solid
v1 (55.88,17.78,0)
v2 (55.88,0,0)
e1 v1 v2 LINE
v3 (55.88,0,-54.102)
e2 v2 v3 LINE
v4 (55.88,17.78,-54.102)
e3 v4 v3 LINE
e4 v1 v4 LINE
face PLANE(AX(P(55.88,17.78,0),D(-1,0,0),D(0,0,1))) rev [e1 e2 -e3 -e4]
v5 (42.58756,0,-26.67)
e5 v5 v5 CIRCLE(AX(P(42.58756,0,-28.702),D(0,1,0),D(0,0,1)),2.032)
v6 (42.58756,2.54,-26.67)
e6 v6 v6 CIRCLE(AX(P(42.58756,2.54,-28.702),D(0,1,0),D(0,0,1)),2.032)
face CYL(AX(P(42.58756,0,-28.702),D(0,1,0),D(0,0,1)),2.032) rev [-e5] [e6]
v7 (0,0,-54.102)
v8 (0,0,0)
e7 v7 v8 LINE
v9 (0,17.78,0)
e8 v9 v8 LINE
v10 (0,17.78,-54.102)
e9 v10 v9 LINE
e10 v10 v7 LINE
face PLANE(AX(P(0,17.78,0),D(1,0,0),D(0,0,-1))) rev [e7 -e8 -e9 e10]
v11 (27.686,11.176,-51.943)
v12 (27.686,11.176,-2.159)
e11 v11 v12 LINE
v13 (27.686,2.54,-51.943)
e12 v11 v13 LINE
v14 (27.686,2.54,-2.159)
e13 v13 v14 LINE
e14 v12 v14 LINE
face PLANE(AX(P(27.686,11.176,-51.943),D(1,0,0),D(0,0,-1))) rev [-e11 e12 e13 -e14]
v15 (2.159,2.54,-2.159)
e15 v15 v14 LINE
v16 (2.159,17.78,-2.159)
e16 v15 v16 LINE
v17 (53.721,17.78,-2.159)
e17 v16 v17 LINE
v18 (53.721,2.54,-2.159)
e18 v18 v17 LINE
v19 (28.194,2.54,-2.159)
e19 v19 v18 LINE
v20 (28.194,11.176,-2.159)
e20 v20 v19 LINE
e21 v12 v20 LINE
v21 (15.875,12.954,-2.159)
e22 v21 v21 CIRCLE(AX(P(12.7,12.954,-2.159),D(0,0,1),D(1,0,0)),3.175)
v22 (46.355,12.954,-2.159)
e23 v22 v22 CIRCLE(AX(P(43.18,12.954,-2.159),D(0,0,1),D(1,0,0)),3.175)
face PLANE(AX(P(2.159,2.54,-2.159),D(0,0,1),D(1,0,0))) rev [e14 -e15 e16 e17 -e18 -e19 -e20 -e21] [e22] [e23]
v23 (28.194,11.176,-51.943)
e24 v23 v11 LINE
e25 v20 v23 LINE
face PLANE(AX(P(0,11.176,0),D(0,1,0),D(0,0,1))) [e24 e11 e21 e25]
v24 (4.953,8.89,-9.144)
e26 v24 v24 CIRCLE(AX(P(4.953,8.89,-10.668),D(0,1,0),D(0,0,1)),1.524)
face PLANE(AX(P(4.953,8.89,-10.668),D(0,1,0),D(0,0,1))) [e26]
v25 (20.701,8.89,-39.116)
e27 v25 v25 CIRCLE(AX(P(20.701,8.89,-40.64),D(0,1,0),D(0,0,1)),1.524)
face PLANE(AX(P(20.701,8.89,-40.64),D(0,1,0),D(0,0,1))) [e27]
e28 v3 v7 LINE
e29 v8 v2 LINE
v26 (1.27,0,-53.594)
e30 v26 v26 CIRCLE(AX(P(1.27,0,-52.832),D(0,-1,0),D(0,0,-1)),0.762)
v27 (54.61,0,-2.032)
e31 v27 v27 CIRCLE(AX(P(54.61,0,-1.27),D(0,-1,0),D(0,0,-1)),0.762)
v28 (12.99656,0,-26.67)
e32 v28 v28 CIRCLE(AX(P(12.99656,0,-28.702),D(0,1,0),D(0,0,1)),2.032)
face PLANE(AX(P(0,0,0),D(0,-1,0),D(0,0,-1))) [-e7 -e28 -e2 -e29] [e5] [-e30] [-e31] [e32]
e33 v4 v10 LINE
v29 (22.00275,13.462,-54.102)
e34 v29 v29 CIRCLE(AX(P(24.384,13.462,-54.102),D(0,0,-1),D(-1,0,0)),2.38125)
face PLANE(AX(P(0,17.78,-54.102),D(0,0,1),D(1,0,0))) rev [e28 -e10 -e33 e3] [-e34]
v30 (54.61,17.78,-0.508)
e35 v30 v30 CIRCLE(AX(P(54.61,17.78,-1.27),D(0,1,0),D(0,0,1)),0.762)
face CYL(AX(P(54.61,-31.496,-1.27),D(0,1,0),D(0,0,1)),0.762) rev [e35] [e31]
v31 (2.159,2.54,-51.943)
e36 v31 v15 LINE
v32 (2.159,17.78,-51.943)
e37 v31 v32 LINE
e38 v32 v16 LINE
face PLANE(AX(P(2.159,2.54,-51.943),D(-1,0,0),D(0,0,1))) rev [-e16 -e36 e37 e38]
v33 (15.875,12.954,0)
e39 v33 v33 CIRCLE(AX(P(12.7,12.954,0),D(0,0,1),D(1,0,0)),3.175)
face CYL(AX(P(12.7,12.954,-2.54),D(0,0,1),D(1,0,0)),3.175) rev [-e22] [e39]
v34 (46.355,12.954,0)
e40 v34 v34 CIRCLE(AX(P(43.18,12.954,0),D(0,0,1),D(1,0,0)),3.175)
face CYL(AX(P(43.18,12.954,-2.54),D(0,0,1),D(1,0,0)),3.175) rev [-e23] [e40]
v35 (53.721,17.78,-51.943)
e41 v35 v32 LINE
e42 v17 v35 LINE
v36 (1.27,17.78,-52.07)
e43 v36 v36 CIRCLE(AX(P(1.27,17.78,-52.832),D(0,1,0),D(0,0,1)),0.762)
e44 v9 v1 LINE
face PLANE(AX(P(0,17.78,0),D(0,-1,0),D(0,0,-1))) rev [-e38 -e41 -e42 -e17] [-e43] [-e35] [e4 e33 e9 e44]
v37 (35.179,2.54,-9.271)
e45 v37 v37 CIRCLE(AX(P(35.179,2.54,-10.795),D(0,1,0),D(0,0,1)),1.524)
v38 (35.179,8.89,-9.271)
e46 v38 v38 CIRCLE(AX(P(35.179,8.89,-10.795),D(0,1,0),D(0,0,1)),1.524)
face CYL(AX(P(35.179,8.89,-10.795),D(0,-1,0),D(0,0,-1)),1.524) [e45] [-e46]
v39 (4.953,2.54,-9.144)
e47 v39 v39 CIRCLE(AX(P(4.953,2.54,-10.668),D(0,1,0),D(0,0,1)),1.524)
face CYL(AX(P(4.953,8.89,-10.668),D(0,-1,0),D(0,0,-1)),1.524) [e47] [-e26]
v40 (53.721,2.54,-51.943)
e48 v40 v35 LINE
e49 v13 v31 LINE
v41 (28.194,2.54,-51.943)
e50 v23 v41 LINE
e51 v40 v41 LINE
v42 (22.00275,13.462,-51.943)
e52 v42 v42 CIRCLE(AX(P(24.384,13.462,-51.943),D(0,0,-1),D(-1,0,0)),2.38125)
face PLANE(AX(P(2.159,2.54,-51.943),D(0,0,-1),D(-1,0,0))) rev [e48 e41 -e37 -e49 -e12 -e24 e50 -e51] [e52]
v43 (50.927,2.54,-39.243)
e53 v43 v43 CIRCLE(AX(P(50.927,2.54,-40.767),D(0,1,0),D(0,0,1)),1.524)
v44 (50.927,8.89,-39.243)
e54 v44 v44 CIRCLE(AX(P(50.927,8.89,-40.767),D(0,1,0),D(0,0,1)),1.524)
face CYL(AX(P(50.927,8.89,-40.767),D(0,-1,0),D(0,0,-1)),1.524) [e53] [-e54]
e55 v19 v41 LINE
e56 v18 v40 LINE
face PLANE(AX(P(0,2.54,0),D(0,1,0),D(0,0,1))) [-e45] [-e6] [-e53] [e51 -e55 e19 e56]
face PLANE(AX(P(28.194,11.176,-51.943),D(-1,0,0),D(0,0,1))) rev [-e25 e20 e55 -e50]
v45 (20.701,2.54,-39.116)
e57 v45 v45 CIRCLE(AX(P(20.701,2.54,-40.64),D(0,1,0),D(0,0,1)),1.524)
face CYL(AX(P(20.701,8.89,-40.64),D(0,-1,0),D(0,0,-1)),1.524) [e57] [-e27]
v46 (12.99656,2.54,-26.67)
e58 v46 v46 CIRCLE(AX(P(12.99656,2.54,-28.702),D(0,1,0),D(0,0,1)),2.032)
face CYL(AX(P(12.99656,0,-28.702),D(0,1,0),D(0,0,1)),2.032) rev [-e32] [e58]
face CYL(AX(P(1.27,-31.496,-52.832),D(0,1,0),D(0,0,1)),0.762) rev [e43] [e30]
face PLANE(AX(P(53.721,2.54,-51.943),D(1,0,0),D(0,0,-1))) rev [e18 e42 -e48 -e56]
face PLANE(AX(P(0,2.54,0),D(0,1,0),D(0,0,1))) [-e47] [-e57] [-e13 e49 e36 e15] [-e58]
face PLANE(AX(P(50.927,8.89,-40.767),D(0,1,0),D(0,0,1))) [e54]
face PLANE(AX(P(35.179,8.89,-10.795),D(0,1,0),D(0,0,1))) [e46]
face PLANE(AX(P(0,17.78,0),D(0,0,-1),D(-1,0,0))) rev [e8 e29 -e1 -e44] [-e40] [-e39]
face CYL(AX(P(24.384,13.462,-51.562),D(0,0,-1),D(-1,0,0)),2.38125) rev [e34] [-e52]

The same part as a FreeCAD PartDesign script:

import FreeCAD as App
import Part
import Sketcher

V = App.Vector
Q = App.Units.Quantity

doc = App.newDocument("Part")
body = doc.addObject("PartDesign::Body", "Body")

sketch1 = body.newObject("Sketcher::SketchObject", "Sketch")
sketch1.AttachmentSupport = (doc.getObject("XZ_Plane"), [""])
sketch1.MapMode = "FlatFace"
sketch1.addGeometry(Part.LineSegment(V(0, -54.102, 0), V(0, 0, 0)), False)
sketch1.addGeometry(Part.LineSegment(V(0, 0, 0), V(55.88, 0, 0)), False)
sketch1.addGeometry(Part.LineSegment(V(55.88, 0, 0), V(55.88, -54.102, 0)), False)
sketch1.addGeometry(Part.LineSegment(V(55.88, -54.102, 0), V(0, -54.102, 0)), False)
sketch1.addConstraint(Sketcher.Constraint("Coincident", 0, 2, 1, 1))
sketch1.addConstraint(Sketcher.Constraint("Coincident", 1, 2, 2, 1))
sketch1.addConstraint(Sketcher.Constraint("Coincident", 2, 2, 3, 1))
sketch1.addConstraint(Sketcher.Constraint("Coincident", 3, 2, 0, 1))
sketch1.addConstraint(Sketcher.Constraint("Vertical", 0))
sketch1.addConstraint(Sketcher.Constraint("Horizontal", 1))
sketch1.addConstraint(Sketcher.Constraint("Vertical", 2))
sketch1.addConstraint(Sketcher.Constraint("Horizontal", 3))
sketch1.addConstraint(Sketcher.Constraint("Coincident", 0, 2, -1, 1))
sketch1.addConstraint(Sketcher.Constraint("DistanceX", 1, 1, 1, 2, Q("2.2 in")))
sketch1.addConstraint(Sketcher.Constraint("DistanceY", 0, 1, 0, 2, Q("2.13 in")))
pad1 = body.newObject("PartDesign::Pad", "Pad")
pad1.Profile = sketch1
pad1.Length = Q("0.7 in")
pad1.Reversed = True

sketch2 = body.newObject("Sketcher::SketchObject", "Sketch001")
sketch2.AttachmentSupport = (doc.getObject("XZ_Plane"), [""])
sketch2.MapMode = "FlatFace"
sketch2.AttachmentOffset = App.Placement(V(0, 0, -0.7 * 25.4), App.Rotation())
sketch2.addGeometry(Part.LineSegment(V(2.159, -51.943, 0), V(2.159, -2.159, 0)), False)
sketch2.addGeometry(Part.LineSegment(V(2.159, -2.159, 0), V(53.721, -2.159, 0)), False)
sketch2.addGeometry(Part.LineSegment(V(53.721, -2.159, 0), V(53.721, -51.943, 0)), False)
sketch2.addGeometry(Part.LineSegment(V(53.721, -51.943, 0), V(2.159, -51.943, 0)), False)
sketch2.addConstraint(Sketcher.Constraint("Coincident", 0, 2, 1, 1))
sketch2.addConstraint(Sketcher.Constraint("Coincident", 1, 2, 2, 1))
sketch2.addConstraint(Sketcher.Constraint("Coincident", 2, 2, 3, 1))
sketch2.addConstraint(Sketcher.Constraint("Coincident", 3, 2, 0, 1))
sketch2.addConstraint(Sketcher.Constraint("Vertical", 0))
sketch2.addConstraint(Sketcher.Constraint("Horizontal", 1))
sketch2.addConstraint(Sketcher.Constraint("Vertical", 2))
sketch2.addConstraint(Sketcher.Constraint("Horizontal", 3))
sketch2.addConstraint(Sketcher.Constraint("DistanceX", 1, 1, 1, 2, Q("2.03 in")))
sketch2.addConstraint(Sketcher.Constraint("DistanceY", 0, 1, 0, 2, Q("1.96 in")))
sketch2.addConstraint(Sketcher.Constraint("DistanceX", -1, 1, 0, 2, Q("0.085 in")))
sketch2.addConstraint(Sketcher.Constraint("DistanceY", 0, 2, -1, 1, Q("0.085 in")))
pocket1 = body.newObject("PartDesign::Pocket", "Pocket")
pocket1.Profile = sketch2
pocket1.Length = Q("0.6 in")
pocket1.Reversed = True

sketch3 = body.newObject("Sketcher::SketchObject", "Sketch002")
sketch3.AttachmentSupport = (doc.getObject("XZ_Plane"), [""])
sketch3.MapMode = "FlatFace"
sketch3.AttachmentOffset = App.Placement(V(0, 0, -0.1 * 25.4), App.Rotation())
sketch3.addGeometry(Part.Circle(V(20.701, -40.64, 0), V(0, 0, 1), 1.524), False)
sketch3.addGeometry(Part.Circle(V(4.953, -10.668, 0), V(0, 0, 1), 1.524), False)
sketch3.addGeometry(Part.Circle(V(50.927, -40.767, 0), V(0, 0, 1), 1.524), False)
sketch3.addGeometry(Part.Circle(V(35.179, -10.795, 0), V(0, 0, 1), 1.524), False)
sketch3.addConstraint(Sketcher.Constraint("Equal", 0, 1))
sketch3.addConstraint(Sketcher.Constraint("Equal", 1, 2))
sketch3.addConstraint(Sketcher.Constraint("Equal", 2, 3))
sketch3.addConstraint(Sketcher.Constraint("Diameter", 0, Q("0.12 in")))
sketch3.addConstraint(Sketcher.Constraint("DistanceY", 0, 3, -1, 1, Q("1.6 in")))
sketch3.addConstraint(Sketcher.Constraint("DistanceY", 1, 3, -1, 1, Q("0.42 in")))
sketch3.addConstraint(Sketcher.Constraint("DistanceX", 1, 3, 0, 3, Q("0.62 in")))
sketch3.addConstraint(Sketcher.Constraint("DistanceX", 0, 3, 2, 3, Q("1.19 in")))
sketch3.addConstraint(Sketcher.Constraint("DistanceX", 1, 3, 3, 3, Q("1.19 in")))
sketch3.addConstraint(Sketcher.Constraint("DistanceY", 2, 3, 3, 3, Q("1.18 in")))
sketch3.addConstraint(Sketcher.Constraint("DistanceX", -1, 1, 0, 3, Q("0.815 in")))
sketch3.addConstraint(Sketcher.Constraint("DistanceY", 2, 3, -1, 1, Q("1.605 in")))
pad2 = body.newObject("PartDesign::Pad", "Pad001")
pad2.Profile = sketch3
pad2.Length = Q("0.25 in")
pad2.Reversed = True

sketch4 = body.newObject("Sketcher::SketchObject", "Sketch003")
sketch4.AttachmentSupport = (doc.getObject("XZ_Plane"), [""])
sketch4.MapMode = "FlatFace"
sketch4.AttachmentOffset = App.Placement(V(0, 0, -0.1 * 25.4), App.Rotation())
sketch4.addGeometry(Part.LineSegment(V(27.686, -51.943, 0), V(27.686, -2.159, 0)), False)
sketch4.addGeometry(Part.LineSegment(V(27.686, -2.159, 0), V(28.194, -2.159, 0)), False)
sketch4.addGeometry(Part.LineSegment(V(28.194, -2.159, 0), V(28.194, -51.943, 0)), False)
sketch4.addGeometry(Part.LineSegment(V(28.194, -51.943, 0), V(27.686, -51.943, 0)), False)
sketch4.addConstraint(Sketcher.Constraint("Coincident", 0, 2, 1, 1))
sketch4.addConstraint(Sketcher.Constraint("Coincident", 1, 2, 2, 1))
sketch4.addConstraint(Sketcher.Constraint("Coincident", 2, 2, 3, 1))
sketch4.addConstraint(Sketcher.Constraint("Coincident", 3, 2, 0, 1))
sketch4.addConstraint(Sketcher.Constraint("Vertical", 0))
sketch4.addConstraint(Sketcher.Constraint("Horizontal", 1))
sketch4.addConstraint(Sketcher.Constraint("Vertical", 2))
sketch4.addConstraint(Sketcher.Constraint("Horizontal", 3))
sketch4.addConstraint(Sketcher.Constraint("DistanceX", 1, 1, 1, 2, Q("0.02 in")))
sketch4.addConstraint(Sketcher.Constraint("DistanceY", 0, 1, 0, 2, Q("1.96 in")))
sketch4.addConstraint(Sketcher.Constraint("DistanceX", -1, 1, 0, 2, Q("1.09 in")))
sketch4.addConstraint(Sketcher.Constraint("DistanceY", 0, 2, -1, 1, Q("0.085 in")))
pad3 = body.newObject("PartDesign::Pad", "Pad002")
pad3.Profile = sketch4
pad3.Length = Q("0.34 in")
pad3.Reversed = True

sketch5 = body.newObject("Sketcher::SketchObject", "Sketch004")
sketch5.AttachmentSupport = (doc.getObject("XY_Plane"), [""])
sketch5.MapMode = "FlatFace"
sketch5.addGeometry(Part.Circle(V(12.7, 12.954, 0), V(0, 0, 1), 3.175), False)
sketch5.addGeometry(Part.Circle(V(43.18, 12.954, 0), V(0, 0, 1), 3.175), False)
sketch5.addConstraint(Sketcher.Constraint("Equal", 0, 1))
sketch5.addConstraint(Sketcher.Constraint("Horizontal", 0, 3, 1, 3))
sketch5.addConstraint(Sketcher.Constraint("Diameter", 0, Q("0.25 in")))
sketch5.addConstraint(Sketcher.Constraint("DistanceX", -1, 1, 0, 3, Q("0.5 in")))
sketch5.addConstraint(Sketcher.Constraint("DistanceX", -1, 1, 1, 3, Q("1.7 in")))
sketch5.addConstraint(Sketcher.Constraint("DistanceY", -1, 1, 0, 3, Q("0.51 in")))
pocket2 = body.newObject("PartDesign::Pocket", "Pocket001")
pocket2.Profile = sketch5
pocket2.Length = Q("0.1 in")

sketch6 = body.newObject("Sketcher::SketchObject", "Sketch005")
sketch6.AttachmentSupport = (doc.getObject("XY_Plane"), [""])
sketch6.MapMode = "FlatFace"
sketch6.AttachmentOffset = App.Placement(V(0, 0, -2.13 * 25.4), App.Rotation())
sketch6.addGeometry(Part.Circle(V(24.384, 13.462, 0), V(0, 0, 1), 2.38125), False)
sketch6.addConstraint(Sketcher.Constraint("Diameter", 0, Q("0.1875 in")))
sketch6.addConstraint(Sketcher.Constraint("DistanceX", -1, 1, 0, 3, Q("0.96 in")))
sketch6.addConstraint(Sketcher.Constraint("DistanceY", -1, 1, 0, 3, Q("0.53 in")))
pocket3 = body.newObject("PartDesign::Pocket", "Pocket002")
pocket3.Profile = sketch6
pocket3.Length = Q("0.1 in")
pocket3.Reversed = True

sketch7 = body.newObject("Sketcher::SketchObject", "Sketch006")
sketch7.AttachmentSupport = (doc.getObject("XZ_Plane"), [""])
sketch7.MapMode = "FlatFace"
sketch7.AttachmentOffset = App.Placement(V(0, 0, -0.1 * 25.4), App.Rotation())
sketch7.addGeometry(Part.Circle(V(12.99656, -28.702, 0), V(0, 0, 1), 2.032), False)
sketch7.addConstraint(Sketcher.Constraint("Diameter", 0, Q("0.16 in")))
sketch7.addConstraint(Sketcher.Constraint("DistanceY", 0, 3, -1, 1, Q("1.13 in")))
sketch7.addConstraint(Sketcher.Constraint("DistanceX", -1, 1, 0, 3, Q("12.99656 mm")))
pocket4 = body.newObject("PartDesign::Pocket", "Pocket003")
pocket4.Profile = sketch7
pocket4.Length = Q("0.1 in")
pocket4.Reversed = True

sketch8 = body.newObject("Sketcher::SketchObject", "Sketch007")
sketch8.AttachmentSupport = (doc.getObject("XZ_Plane"), [""])
sketch8.MapMode = "FlatFace"
sketch8.AttachmentOffset = App.Placement(V(0, 0, -0.1 * 25.4), App.Rotation())
sketch8.addGeometry(Part.Circle(V(42.58756, -28.702, 0), V(0, 0, 1), 2.032), False)
sketch8.addConstraint(Sketcher.Constraint("Diameter", 0, Q("0.16 in")))
sketch8.addConstraint(Sketcher.Constraint("DistanceY", 0, 3, -1, 1, Q("1.13 in")))
sketch8.addConstraint(Sketcher.Constraint("DistanceX", -1, 1, 0, 3, Q("42.58756 mm")))
pocket5 = body.newObject("PartDesign::Pocket", "Pocket004")
pocket5.Profile = sketch8
pocket5.Length = Q("0.1 in")
pocket5.Reversed = True

sketch9 = body.newObject("Sketcher::SketchObject", "Sketch008")
sketch9.AttachmentSupport = (doc.getObject("XZ_Plane"), [""])
sketch9.MapMode = "FlatFace"
sketch9.AttachmentOffset = App.Placement(V(0, 0, -0.7 * 25.4), App.Rotation())
sketch9.addGeometry(Part.Circle(V(1.27, -52.832, 0), V(0, 0, 1), 0.762), False)
sketch9.addGeometry(Part.Circle(V(54.61, -1.27, 0), V(0, 0, 1), 0.762), False)
sketch9.addConstraint(Sketcher.Constraint("Equal", 0, 1))
sketch9.addConstraint(Sketcher.Constraint("Diameter", 0, Q("0.06 in")))
sketch9.addConstraint(Sketcher.Constraint("DistanceX", 0, 3, 1, 3, Q("2.1 in")))
sketch9.addConstraint(Sketcher.Constraint("DistanceX", -1, 1, 0, 3, Q("0.05 in")))
sketch9.addConstraint(Sketcher.Constraint("DistanceY", 0, 3, -1, 1, Q("2.08 in")))
sketch9.addConstraint(Sketcher.Constraint("DistanceY", 1, 3, -1, 1, Q("0.05 in")))
pocket6 = body.newObject("PartDesign::Pocket", "Pocket005")
pocket6.Profile = sketch9
pocket6.Length = Q("1.94 in")
pocket6.Reversed = True

doc.recompute()
